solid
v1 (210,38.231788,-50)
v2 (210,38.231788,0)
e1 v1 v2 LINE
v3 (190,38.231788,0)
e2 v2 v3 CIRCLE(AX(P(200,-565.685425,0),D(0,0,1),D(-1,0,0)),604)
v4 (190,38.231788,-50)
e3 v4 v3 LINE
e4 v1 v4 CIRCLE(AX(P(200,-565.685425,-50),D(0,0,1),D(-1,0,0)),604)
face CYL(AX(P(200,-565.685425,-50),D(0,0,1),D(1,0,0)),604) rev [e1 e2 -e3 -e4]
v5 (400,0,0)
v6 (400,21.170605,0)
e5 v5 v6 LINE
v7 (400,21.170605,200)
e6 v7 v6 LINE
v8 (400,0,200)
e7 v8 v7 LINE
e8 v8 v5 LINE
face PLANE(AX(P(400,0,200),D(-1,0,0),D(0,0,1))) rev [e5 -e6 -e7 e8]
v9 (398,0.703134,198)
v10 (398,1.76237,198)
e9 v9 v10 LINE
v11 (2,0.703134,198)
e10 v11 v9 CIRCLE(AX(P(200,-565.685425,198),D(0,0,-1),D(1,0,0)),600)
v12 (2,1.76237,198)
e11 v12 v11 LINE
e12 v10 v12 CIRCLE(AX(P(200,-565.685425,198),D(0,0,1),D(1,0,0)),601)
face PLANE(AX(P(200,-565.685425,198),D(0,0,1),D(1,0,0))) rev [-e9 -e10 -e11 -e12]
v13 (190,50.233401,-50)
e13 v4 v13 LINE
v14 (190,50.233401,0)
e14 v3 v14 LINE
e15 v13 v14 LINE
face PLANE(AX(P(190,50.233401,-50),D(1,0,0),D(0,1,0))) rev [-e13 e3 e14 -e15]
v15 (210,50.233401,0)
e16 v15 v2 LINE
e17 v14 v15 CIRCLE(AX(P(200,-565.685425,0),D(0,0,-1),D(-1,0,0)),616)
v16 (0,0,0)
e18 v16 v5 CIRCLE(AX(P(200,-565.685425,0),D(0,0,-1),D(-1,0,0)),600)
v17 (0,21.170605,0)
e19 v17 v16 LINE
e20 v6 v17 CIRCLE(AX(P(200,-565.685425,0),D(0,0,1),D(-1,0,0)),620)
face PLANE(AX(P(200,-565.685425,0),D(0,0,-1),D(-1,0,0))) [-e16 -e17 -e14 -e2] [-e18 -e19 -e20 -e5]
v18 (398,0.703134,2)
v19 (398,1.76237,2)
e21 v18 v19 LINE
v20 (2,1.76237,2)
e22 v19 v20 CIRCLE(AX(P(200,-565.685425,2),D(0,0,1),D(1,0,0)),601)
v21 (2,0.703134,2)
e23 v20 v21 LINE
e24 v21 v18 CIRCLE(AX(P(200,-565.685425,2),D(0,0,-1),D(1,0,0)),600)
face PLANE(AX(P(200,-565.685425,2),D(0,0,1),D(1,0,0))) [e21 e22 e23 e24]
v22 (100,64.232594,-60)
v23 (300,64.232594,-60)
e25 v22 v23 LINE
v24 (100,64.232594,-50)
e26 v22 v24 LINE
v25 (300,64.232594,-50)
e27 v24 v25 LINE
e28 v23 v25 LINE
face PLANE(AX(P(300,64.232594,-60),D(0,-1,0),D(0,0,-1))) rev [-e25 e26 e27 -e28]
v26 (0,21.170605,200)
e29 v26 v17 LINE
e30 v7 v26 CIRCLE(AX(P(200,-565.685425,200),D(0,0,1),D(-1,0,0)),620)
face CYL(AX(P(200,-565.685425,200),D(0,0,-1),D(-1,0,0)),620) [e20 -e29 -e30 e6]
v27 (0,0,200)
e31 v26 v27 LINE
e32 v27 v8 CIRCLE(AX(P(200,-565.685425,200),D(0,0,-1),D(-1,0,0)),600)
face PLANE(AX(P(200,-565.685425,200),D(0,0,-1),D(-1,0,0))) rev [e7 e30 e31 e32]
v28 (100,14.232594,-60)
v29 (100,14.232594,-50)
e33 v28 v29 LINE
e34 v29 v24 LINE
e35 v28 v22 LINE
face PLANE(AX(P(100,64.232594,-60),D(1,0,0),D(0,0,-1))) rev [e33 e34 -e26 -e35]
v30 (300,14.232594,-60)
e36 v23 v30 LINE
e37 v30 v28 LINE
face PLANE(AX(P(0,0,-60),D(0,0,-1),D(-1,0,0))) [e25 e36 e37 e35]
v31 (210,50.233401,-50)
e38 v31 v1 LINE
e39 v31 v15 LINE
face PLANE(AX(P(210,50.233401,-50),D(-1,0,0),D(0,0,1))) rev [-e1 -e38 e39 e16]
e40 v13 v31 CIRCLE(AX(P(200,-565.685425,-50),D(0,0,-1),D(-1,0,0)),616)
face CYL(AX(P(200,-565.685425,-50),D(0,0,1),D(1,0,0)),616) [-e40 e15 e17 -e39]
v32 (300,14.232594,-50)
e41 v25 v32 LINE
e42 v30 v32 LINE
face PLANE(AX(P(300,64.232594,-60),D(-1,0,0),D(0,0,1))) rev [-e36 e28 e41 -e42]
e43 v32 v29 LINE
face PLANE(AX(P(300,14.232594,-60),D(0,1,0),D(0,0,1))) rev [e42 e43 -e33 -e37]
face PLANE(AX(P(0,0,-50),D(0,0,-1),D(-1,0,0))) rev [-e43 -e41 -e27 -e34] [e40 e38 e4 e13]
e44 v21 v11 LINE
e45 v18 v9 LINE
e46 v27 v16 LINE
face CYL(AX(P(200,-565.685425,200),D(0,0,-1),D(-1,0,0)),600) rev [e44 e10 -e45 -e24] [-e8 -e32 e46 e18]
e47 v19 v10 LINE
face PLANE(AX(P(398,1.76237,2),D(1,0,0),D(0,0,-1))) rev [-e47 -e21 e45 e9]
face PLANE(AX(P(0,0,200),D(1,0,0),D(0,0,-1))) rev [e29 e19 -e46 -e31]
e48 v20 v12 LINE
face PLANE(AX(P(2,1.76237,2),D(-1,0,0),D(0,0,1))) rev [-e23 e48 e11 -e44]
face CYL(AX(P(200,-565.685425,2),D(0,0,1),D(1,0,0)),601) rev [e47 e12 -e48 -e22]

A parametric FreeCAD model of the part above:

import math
import FreeCAD as App
import Part
import Sketcher

V = App.Vector


def add_polygon(sketch, points):
    """Adds a closed chain of lines whose ends are joined by coincident constraints."""
    first, n = sketch.GeometryCount, len(points)
    for a, b in zip(points, points[1:] + points[:1]):
        sketch.addGeometry(Part.LineSegment(App.Vector(*a, 0), App.Vector(*b, 0)), False)
    for i in range(n):
        sketch.addConstraint(Sketcher.Constraint("Coincident", first + i, 2, first + (i + 1) % n, 1))

doc = App.newDocument("Part")
params = doc.addObject("Spreadsheet::Sheet", "Params")
for row, (alias, value) in enumerate([
    ("sketch1_radius", "600 mm"),
    ("sketch1_radius2", "620 mm"),
    ("pad1_length", "200 mm"),
    ("sketch2_radius", "600 mm"),
    ("sketch2_radius2", "601 mm"),
    ("pocket1_length", "196 mm"),
    ("pad2_length", "50 mm"),
    ("sketch4_width", "200 mm"),
    ("sketch4_height", "50 mm"),
    ("pad3_length", "10 mm"),
], start=1):
    params.set(f"A{row}", alias)
    params.set(f"B{row}", "=" + value)
    params.setAlias(f"B{row}", alias)

body = doc.addObject("PartDesign::Body", "Body")

# Sketch on XY plane
sketch1 = body.newObject("Sketcher::SketchObject", "Sketch")
sketch1.AttachmentSupport = (doc.getObject("XY_Plane"), [""])
sketch1.MapMode = "FlatFace"
sketch1.addGeometry(Part.LineSegment(V(0, 21, 0), V(0, 0, 0)), False)
sketch1.addGeometry(Part.ArcOfCircle(Part.Circle(V(200, -566, 0), V(0, 0, 1), 600), math.radians(71), math.radians(109)), False)
sketch1.addGeometry(Part.LineSegment(V(400, 0, 0), V(400, 21, 0)), False)
sketch1.addGeometry(Part.ArcOfCircle(Part.Circle(V(200, -566, 0), V(0, 0, 1), 620), math.radians(71), math.radians(109)), False)
sketch1.addConstraint(Sketcher.Constraint("Coincident", 0, 2, 1, 2))
sketch1.addConstraint(Sketcher.Constraint("Coincident", 1, 1, 2, 1))
sketch1.addConstraint(Sketcher.Constraint("Coincident", 2, 2, 3, 1))
sketch1.addConstraint(Sketcher.Constraint("Coincident", 3, 2, 0, 1))
sketch1.addConstraint(Sketcher.Constraint("Vertical", 0))
sketch1.addConstraint(Sketcher.Constraint("Vertical", 2))
sketch1.addConstraint(Sketcher.Constraint("Coincident", 0, 2, -1, 1))
sketch1.addConstraint(Sketcher.Constraint("Coincident", 3, 3, 1, 3))
sketch1.addConstraint(Sketcher.Constraint("PointOnObject", 1, 1, -1))
sketch1.addConstraint(Sketcher.Constraint("Radius", 1, 600.0))
sketch1.addConstraint(Sketcher.Constraint("Radius", 3, 620.0))
sketch1.addConstraint(Sketcher.Constraint("DistanceX", -1, 1, 1, 3, 200.0))
sketch1.setExpression("Constraints[9]", "Params.sketch1_radius")
sketch1.setExpression("Constraints[10]", "Params.sketch1_radius2")
pad1 = body.newObject("PartDesign::Pad", "Pad")
pad1.Profile = sketch1
pad1.setExpression("Length", "Params.pad1_length")

# Sketch on XY plane
sketch2 = body.newObject("Sketcher::SketchObject", "Sketch001")
sketch2.AttachmentSupport = (doc.getObject("XY_Plane"), [""])
sketch2.MapMode = "FlatFace"
sketch2.AttachmentOffset = App.Placement(V(0, 0, 198), App.Rotation())
sketch2.addGeometry(Part.LineSegment(V(2, 1.8, 0), V(2, 0.7, 0)), False)
sketch2.addGeometry(Part.ArcOfCircle(Part.Circle(V(200, -565.7, 0), V(0, 0, 1), 600), math.radians(71), math.radians(109)), False)
sketch2.addGeometry(Part.LineSegment(V(398, 0.7, 0), V(398, 1.8, 0)), False)
sketch2.addGeometry(Part.ArcOfCircle(Part.Circle(V(200, -565.7, 0), V(0, 0, 1), 601), math.radians(71), math.radians(109)), False)
sketch2.addConstraint(Sketcher.Constraint("Coincident", 0, 2, 1, 2))
sketch2.addConstraint(Sketcher.Constraint("Coincident", 1, 1, 2, 1))
sketch2.addConstraint(Sketcher.Constraint("Coincident", 2, 2, 3, 1))
sketch2.addConstraint(Sketcher.Constraint("Coincident", 3, 2, 0, 1))
sketch2.addConstraint(Sketcher.Constraint("Vertical", 0))
sketch2.addConstraint(Sketcher.Constraint("Vertical", 2))
sketch2.addConstraint(Sketcher.Constraint("Coincident", 3, 3, 1, 3))
sketch2.addConstraint(Sketcher.Constraint("Horizontal", 0, 2, 1, 1))
sketch2.addConstraint(Sketcher.Constraint("Radius", 1, 600.0))
sketch2.addConstraint(Sketcher.Constraint("Radius", 3, 601.0))
sketch2.addConstraint(Sketcher.Constraint("DistanceX", -1, 1, 1, 3, 200.0))
sketch2.addConstraint(Sketcher.Constraint("DistanceX", -1, 1, 0, 2, 2.0))
sketch2.addConstraint(Sketcher.Constraint("DistanceY", -1, 1, 2, 2, 1.76237))
sketch2.setExpression("Constraints[8]", "Params.sketch2_radius")
sketch2.setExpression("Constraints[9]", "Params.sketch2_radius2")
pocket1 = body.newObject("PartDesign::Pocket", "Pocket")
pocket1.Profile = sketch2
pocket1.setExpression("Length", "Params.pocket1_length")

# Sketch on XY plane
sketch3 = body.newObject("Sketcher::SketchObject", "Sketch002")
sketch3.AttachmentSupport = (doc.getObject("XY_Plane"), [""])
sketch3.MapMode = "FlatFace"
sketch3.addGeometry(Part.LineSegment(V(210, 50, 0), V(210, 38, 0)), False)
sketch3.addGeometry(Part.ArcOfCircle(Part.Circle(V(200, -566, 0), V(0, 0, 1), 604), math.radians(89.05), math.radians(90.95)), False)
sketch3.addGeometry(Part.LineSegment(V(190, 38, 0), V(190, 50, 0)), False)
sketch3.addGeometry(Part.ArcOfCircle(Part.Circle(V(200, -566, 0), V(0, 0, 1), 616), math.radians(89.07), math.radians(90.93)), False)
sketch3.addConstraint(Sketcher.Constraint("Coincident", 0, 2, 1, 1))
sketch3.addConstraint(Sketcher.Constraint("Coincident", 1, 2, 2, 1))
sketch3.addConstraint(Sketcher.Constraint("Coincident", 2, 2, 3, 2))
sketch3.addConstraint(Sketcher.Constraint("Coincident", 3, 1, 0, 1))
sketch3.addConstraint(Sketcher.Constraint("Vertical", 0))
sketch3.addConstraint(Sketcher.Constraint("Vertical", 2))
sketch3.addConstraint(Sketcher.Constraint("Coincident", 3, 3, 1, 3))
sketch3.addConstraint(Sketcher.Constraint("Horizontal", 0, 2, 1, 2))
sketch3.addConstraint(Sketcher.Constraint("DistanceX", -1, 1, 1, 3, 200.0))
sketch3.addConstraint(Sketcher.Constraint("DistanceX", -1, 1, 0, 2, 210.0))
sketch3.addConstraint(Sketcher.Constraint("Radius", 1, 603.999997))
sketch3.addConstraint(Sketcher.Constraint("Radius", 3, 615.999997))
sketch3.addConstraint(Sketcher.Constraint("DistanceY", -1, 1, 2, 2, 50.233401))
pad2 = body.newObject("PartDesign::Pad", "Pad001")
pad2.Profile = sketch3
pad2.setExpression("Length", "Params.pad2_length")
pad2.Reversed = True

# Sketch on XY plane
sketch4 = body.newObject("Sketcher::SketchObject", "Sketch003")
sketch4.AttachmentSupport = (doc.getObject("XY_Plane"), [""])
sketch4.MapMode = "FlatFace"
sketch4.AttachmentOffset = App.Placement(V(0, 0, -50), App.Rotation())
add_polygon(sketch4, [(300, 64), (300, 14), (100, 14), (100, 64)])  # lines 0-3
sketch4.addConstraint(Sketcher.Constraint("Vertical", 0))
sketch4.addConstraint(Sketcher.Constraint("Horizontal", 1))
sketch4.addConstraint(Sketcher.Constraint("Vertical", 2))
sketch4.addConstraint(Sketcher.Constraint("Horizontal", 3))
sketch4.addConstraint(Sketcher.Constraint("DistanceX", 1, 2, 1, 1, 200.0))
sketch4.addConstraint(Sketcher.Constraint("DistanceY", 0, 2, 0, 1, 50.0))
sketch4.addConstraint(Sketcher.Constraint("DistanceX", -1, 1, 0, 2, 300.0))
sketch4.addConstraint(Sketcher.Constraint("DistanceY", -1, 1, 0, 2, 14.232594))
sketch4.setExpression("Constraints[8]", "Params.sketch4_width")
sketch4.setExpression("Constraints[9]", "Params.sketch4_height")
pad3 = body.newObject("PartDesign::Pad", "Pad002")
pad3.Profile = sketch4
pad3.setExpression("Length", "Params.pad3_length")
pad3.Reversed = True

doc.recompute()
